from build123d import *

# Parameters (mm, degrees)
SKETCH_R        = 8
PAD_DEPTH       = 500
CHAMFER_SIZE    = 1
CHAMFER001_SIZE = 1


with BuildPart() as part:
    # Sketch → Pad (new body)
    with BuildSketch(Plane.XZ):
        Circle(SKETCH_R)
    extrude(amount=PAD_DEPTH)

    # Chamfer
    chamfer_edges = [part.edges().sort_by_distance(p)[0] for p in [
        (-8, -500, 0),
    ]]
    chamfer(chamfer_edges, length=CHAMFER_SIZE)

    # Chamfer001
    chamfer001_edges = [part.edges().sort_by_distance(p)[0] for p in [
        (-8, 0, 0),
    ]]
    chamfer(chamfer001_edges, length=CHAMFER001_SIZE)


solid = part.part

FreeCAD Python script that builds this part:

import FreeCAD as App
import Part
import Sketcher

V = App.Vector
Q = App.Units.Quantity


def edges_at(feature, points):
    """Names of the edges that pass closest to the given points."""
    edges = feature.Shape.Edges
    near = lambda p: min(range(len(edges)), key=lambda i: edges[i].distToShape(Part.Vertex(*p))[0])
    return sorted({f"Edge{near(p) + 1}" for p in points})

doc = App.newDocument("Part")
body = doc.addObject("PartDesign::Body", "Body")

sketch1 = body.newObject("Sketcher::SketchObject", "Sketch")
sketch1.AttachmentSupport = (doc.getObject("XZ_Plane"), [""])
sketch1.MapMode = "FlatFace"
sketch1.addGeometry(Part.Circle(V(0, 0, 0), V(0, 0, 1), 8), False)
sketch1.addConstraint([
    Sketcher.Constraint("Coincident", 0, 3, -1, 1),
    Sketcher.Constraint("Diameter", 0, Q("16 mm")),
])
pad1 = body.newObject("PartDesign::Pad", "Pad")
pad1.Profile = sketch1
pad1.Length = 500
doc.recompute()

chamfer = body.newObject("PartDesign::Chamfer", "Chamfer")
chamfer.Base = (pad1, edges_at(pad1, [(-8, -500, 0)]))
chamfer.Size = 1
doc.recompute()

chamfer2 = body.newObject("PartDesign::Chamfer", "Chamfer001")
chamfer2.Base = (chamfer, edges_at(chamfer, [(-8, 0, 0)]))
chamfer2.Size = 1

doc.recompute()
